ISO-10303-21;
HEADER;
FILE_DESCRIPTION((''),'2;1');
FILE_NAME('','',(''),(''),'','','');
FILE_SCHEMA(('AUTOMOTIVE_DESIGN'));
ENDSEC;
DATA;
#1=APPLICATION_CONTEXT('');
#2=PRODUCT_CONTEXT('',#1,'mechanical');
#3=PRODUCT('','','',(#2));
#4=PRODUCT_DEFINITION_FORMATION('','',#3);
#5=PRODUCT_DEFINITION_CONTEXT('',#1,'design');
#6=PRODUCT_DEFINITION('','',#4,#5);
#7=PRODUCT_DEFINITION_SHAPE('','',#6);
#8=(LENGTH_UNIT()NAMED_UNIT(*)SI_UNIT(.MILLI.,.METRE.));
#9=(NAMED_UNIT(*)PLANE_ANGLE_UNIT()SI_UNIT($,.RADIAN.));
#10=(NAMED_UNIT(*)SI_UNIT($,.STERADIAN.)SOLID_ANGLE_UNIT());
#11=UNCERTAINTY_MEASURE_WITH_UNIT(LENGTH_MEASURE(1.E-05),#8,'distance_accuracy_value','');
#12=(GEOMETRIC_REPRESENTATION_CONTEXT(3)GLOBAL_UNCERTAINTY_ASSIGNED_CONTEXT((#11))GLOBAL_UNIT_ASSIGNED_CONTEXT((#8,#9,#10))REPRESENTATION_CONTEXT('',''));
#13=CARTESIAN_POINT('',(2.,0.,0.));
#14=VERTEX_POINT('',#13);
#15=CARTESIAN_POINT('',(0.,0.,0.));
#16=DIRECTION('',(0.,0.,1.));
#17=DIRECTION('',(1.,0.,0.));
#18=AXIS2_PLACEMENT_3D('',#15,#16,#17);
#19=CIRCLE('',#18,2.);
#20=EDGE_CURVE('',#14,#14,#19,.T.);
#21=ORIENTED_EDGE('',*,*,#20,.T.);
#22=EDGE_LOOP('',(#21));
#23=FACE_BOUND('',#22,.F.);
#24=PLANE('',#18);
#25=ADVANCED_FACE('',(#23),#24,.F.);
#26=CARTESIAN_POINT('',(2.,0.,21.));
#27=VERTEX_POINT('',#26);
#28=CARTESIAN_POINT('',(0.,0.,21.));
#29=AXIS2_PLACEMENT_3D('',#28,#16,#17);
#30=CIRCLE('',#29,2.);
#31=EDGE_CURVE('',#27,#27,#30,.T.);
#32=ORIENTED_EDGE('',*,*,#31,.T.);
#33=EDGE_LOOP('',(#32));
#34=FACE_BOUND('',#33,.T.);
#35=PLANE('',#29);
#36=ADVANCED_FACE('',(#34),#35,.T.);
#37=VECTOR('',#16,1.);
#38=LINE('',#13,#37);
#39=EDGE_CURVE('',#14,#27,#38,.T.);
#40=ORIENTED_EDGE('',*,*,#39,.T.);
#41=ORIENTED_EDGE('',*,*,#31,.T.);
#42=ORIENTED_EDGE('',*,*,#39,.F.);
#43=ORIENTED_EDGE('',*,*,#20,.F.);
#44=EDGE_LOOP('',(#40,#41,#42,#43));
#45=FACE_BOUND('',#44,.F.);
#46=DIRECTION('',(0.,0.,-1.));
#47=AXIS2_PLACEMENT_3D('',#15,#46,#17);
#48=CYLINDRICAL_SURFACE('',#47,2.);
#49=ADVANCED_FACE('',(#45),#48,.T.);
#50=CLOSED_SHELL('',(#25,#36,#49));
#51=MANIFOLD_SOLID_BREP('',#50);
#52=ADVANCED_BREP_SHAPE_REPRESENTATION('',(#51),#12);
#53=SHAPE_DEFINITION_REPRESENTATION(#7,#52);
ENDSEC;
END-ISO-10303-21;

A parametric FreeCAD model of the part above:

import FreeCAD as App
import Part
import Sketcher

doc = App.newDocument("Part")
body = doc.addObject("PartDesign::Body", "Body")

sketch1 = doc.addObject("Sketcher::SketchObject", "Sketch")
body.addObject(sketch1)
sketch1.AttachmentSupport = (doc.XY_Plane, [""])
sketch1.MapMode = "FlatFace"
sketch1.addGeometry(Part.Circle(App.Vector(0, 0, 0), App.Vector(0, 0, 1), 2), False)
sketch1.addConstraint(Sketcher.Constraint("Coincident", 0, 3, -1, 1))
sketch1.addConstraint(Sketcher.Constraint("Diameter", 0, 4.0))
pad1 = doc.addObject("PartDesign::Pad", "Pad")
body.addObject(pad1)
pad1.Profile = sketch1
pad1.Length = 21

doc.recompute()
